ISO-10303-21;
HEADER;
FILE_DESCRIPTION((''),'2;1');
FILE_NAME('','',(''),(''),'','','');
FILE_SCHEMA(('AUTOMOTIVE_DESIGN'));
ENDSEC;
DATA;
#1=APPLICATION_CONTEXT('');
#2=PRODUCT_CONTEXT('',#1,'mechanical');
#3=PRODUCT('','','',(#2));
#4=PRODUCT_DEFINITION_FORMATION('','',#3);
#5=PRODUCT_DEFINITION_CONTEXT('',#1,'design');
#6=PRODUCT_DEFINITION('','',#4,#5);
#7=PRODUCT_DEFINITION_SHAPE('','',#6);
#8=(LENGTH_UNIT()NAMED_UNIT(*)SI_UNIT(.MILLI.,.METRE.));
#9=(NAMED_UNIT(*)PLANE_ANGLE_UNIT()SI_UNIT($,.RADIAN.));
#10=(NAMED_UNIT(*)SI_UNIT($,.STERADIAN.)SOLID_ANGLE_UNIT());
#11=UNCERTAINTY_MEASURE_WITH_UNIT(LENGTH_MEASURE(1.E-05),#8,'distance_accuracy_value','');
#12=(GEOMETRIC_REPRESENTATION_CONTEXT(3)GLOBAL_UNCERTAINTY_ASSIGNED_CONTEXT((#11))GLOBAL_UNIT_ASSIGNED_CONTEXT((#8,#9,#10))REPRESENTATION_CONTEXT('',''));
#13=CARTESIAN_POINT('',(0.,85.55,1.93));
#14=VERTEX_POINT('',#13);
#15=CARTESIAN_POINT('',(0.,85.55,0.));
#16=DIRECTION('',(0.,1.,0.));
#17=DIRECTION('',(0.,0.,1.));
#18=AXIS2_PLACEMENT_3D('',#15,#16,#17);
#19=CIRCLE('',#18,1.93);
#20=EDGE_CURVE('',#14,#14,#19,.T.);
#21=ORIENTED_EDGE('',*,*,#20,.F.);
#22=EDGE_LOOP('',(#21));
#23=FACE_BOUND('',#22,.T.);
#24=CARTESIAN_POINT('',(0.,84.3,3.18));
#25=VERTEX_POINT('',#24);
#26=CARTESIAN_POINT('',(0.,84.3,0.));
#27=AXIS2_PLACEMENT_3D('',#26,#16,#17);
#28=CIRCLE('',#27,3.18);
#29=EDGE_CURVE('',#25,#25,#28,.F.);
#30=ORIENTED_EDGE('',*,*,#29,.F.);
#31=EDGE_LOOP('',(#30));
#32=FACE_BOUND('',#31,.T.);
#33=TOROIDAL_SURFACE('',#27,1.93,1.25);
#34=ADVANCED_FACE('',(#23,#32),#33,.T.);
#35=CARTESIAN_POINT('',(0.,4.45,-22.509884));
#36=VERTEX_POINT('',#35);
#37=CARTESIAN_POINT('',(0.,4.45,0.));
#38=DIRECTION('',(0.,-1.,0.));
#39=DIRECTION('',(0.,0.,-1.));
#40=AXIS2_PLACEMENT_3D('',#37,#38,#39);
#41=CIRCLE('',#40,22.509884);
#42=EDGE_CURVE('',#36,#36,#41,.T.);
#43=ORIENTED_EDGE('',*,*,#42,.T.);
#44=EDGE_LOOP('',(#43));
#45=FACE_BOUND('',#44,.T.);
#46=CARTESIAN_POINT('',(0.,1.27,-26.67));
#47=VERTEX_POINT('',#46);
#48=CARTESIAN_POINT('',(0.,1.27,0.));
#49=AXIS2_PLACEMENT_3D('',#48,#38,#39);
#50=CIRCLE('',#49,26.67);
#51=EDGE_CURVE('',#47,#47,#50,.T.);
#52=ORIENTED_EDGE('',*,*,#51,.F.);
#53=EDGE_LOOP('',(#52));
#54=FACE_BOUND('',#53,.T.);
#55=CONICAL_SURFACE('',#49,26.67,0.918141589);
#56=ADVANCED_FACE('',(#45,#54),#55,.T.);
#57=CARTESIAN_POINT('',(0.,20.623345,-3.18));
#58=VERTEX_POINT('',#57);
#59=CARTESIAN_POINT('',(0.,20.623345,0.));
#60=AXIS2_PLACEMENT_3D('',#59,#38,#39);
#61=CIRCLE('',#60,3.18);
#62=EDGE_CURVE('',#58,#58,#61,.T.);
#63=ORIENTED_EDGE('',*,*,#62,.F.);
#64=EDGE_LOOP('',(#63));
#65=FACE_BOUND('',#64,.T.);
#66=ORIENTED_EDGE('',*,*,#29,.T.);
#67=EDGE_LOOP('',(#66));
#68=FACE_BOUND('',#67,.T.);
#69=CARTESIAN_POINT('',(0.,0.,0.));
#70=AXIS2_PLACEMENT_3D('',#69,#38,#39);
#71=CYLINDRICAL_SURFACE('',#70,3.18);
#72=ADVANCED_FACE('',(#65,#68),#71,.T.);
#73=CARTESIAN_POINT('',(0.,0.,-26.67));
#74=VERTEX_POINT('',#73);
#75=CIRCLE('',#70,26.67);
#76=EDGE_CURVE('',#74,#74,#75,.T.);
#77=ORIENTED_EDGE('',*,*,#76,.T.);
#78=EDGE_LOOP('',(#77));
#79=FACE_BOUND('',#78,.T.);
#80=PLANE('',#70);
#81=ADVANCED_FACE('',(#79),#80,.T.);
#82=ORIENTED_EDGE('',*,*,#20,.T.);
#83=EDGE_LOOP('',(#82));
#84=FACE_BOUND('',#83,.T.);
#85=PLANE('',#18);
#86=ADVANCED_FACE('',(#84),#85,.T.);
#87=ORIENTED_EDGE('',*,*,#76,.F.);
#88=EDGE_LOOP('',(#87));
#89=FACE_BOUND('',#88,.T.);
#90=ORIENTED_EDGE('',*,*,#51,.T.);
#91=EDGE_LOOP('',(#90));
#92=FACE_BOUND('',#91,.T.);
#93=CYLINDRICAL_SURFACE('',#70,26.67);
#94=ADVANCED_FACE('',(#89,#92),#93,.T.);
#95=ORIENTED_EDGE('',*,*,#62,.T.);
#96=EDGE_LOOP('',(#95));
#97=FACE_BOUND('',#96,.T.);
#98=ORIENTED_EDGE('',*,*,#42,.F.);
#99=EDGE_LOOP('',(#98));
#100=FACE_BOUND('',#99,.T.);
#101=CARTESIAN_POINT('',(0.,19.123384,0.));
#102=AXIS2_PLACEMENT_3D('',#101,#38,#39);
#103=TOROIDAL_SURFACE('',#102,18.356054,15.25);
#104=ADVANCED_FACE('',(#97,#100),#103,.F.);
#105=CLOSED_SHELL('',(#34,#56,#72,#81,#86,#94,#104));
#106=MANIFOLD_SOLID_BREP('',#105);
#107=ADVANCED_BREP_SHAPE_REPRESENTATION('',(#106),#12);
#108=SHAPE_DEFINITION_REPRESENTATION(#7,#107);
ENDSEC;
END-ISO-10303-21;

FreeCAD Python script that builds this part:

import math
import FreeCAD as App
import Part
import Sketcher
from FreeCAD import Vector
Q = App.Units.Quantity


def edges_at(feature, points):
    """Names of the edges that pass closest to the given points."""
    edges = feature.Shape.Edges
    near = lambda p: min(range(len(edges)), key=lambda i: edges[i].distToShape(Part.Vertex(*p))[0])
    return sorted({f"Edge{near(p) + 1}" for p in points})

doc = App.newDocument("Part")
body = doc.addObject("PartDesign::Body", "Body")

sketch1 = body.newObject("Sketcher::SketchObject", "Sketch")
sketch1.AttachmentSupport = (doc.getObject("YZ_Plane"), [""])
sketch1.MapMode = "FlatFace"
sketch1.addGeometry(Part.LineSegment(Vector(85.5, 0, 0), Vector(0, 0, 0)), False)
sketch1.addGeometry(Part.LineSegment(Vector(0, 0, 0), Vector(0, -26.7, 0)), False)
sketch1.addGeometry(Part.LineSegment(Vector(0, -26.7, 0), Vector(1.3, -26.7, 0)), False)
sketch1.addGeometry(Part.LineSegment(Vector(1.3, -26.7, 0), Vector(4.5, -22.5, 0)), False)
sketch1.addGeometry(Part.ArcOfCircle(Part.Circle(Vector(19.1, -18.4, 0), Vector(0, 0, 1), 15.2), math.radians(84), math.radians(196)), False)
sketch1.addGeometry(Part.LineSegment(Vector(20.6, -3.2, 0), Vector(85.5, -3.2, 0)), False)
sketch1.addGeometry(Part.LineSegment(Vector(85.5, -3.2, 0), Vector(85.5, 0, 0)), False)
sketch1.addConstraint(Sketcher.Constraint("Coincident", 0, 2, 1, 1))
sketch1.addConstraint(Sketcher.Constraint("Coincident", 1, 2, 2, 1))
sketch1.addConstraint(Sketcher.Constraint("Coincident", 2, 2, 3, 1))
sketch1.addConstraint(Sketcher.Constraint("Coincident", 3, 2, 4, 2))
sketch1.addConstraint(Sketcher.Constraint("Coincident", 4, 1, 5, 1))
sketch1.addConstraint(Sketcher.Constraint("Coincident", 5, 2, 6, 1))
sketch1.addConstraint(Sketcher.Constraint("Coincident", 6, 2, 0, 1))
sketch1.addConstraint(Sketcher.Constraint("Horizontal", 0))
sketch1.addConstraint(Sketcher.Constraint("Vertical", 1))
sketch1.addConstraint(Sketcher.Constraint("Horizontal", 2))
sketch1.addConstraint(Sketcher.Constraint("Horizontal", 5))
sketch1.addConstraint(Sketcher.Constraint("Vertical", 6))
sketch1.addConstraint(Sketcher.Constraint("Coincident", 0, 2, -1, 1))
sketch1.addConstraint(Sketcher.Constraint("DistanceX", 2, 1, 2, 2, Q("0.05 in")))
sketch1.addConstraint(Sketcher.Constraint("DistanceY", 1, 2, 1, 1, Q("1.05 in")))
sketch1.addConstraint(Sketcher.Constraint("Radius", 4, Q("15.25 mm")))
sketch1.addConstraint(Sketcher.Constraint("DistanceX", 0, 2, 0, 1, Q("85.55 mm")))
sketch1.addConstraint(Sketcher.Constraint("DistanceY", 6, 1, 6, 2, Q("3.18 mm")))
sketch1.addConstraint(Sketcher.Constraint("DistanceX", -1, 1, 3, 2, Q("4.45 mm")))
sketch1.addConstraint(Sketcher.Constraint("Distance", 3, Q("5.236312 mm")))
sketch1.addConstraint(Sketcher.Constraint("DistanceX", 5, 1, 5, 2, Q("64.926655 mm")))
revolution = body.newObject("PartDesign::Revolution", "Revolution")
revolution.Profile = sketch1
revolution.ReferenceAxis = (sketch1, ["H_Axis"])
revolution.Angle = 360
doc.recompute()

fillet = body.newObject("PartDesign::Fillet", "Fillet")
fillet.Base = (revolution, edges_at(revolution, [(0, 85.55, 3.18)]))
fillet.Radius = 1.25

doc.recompute()
